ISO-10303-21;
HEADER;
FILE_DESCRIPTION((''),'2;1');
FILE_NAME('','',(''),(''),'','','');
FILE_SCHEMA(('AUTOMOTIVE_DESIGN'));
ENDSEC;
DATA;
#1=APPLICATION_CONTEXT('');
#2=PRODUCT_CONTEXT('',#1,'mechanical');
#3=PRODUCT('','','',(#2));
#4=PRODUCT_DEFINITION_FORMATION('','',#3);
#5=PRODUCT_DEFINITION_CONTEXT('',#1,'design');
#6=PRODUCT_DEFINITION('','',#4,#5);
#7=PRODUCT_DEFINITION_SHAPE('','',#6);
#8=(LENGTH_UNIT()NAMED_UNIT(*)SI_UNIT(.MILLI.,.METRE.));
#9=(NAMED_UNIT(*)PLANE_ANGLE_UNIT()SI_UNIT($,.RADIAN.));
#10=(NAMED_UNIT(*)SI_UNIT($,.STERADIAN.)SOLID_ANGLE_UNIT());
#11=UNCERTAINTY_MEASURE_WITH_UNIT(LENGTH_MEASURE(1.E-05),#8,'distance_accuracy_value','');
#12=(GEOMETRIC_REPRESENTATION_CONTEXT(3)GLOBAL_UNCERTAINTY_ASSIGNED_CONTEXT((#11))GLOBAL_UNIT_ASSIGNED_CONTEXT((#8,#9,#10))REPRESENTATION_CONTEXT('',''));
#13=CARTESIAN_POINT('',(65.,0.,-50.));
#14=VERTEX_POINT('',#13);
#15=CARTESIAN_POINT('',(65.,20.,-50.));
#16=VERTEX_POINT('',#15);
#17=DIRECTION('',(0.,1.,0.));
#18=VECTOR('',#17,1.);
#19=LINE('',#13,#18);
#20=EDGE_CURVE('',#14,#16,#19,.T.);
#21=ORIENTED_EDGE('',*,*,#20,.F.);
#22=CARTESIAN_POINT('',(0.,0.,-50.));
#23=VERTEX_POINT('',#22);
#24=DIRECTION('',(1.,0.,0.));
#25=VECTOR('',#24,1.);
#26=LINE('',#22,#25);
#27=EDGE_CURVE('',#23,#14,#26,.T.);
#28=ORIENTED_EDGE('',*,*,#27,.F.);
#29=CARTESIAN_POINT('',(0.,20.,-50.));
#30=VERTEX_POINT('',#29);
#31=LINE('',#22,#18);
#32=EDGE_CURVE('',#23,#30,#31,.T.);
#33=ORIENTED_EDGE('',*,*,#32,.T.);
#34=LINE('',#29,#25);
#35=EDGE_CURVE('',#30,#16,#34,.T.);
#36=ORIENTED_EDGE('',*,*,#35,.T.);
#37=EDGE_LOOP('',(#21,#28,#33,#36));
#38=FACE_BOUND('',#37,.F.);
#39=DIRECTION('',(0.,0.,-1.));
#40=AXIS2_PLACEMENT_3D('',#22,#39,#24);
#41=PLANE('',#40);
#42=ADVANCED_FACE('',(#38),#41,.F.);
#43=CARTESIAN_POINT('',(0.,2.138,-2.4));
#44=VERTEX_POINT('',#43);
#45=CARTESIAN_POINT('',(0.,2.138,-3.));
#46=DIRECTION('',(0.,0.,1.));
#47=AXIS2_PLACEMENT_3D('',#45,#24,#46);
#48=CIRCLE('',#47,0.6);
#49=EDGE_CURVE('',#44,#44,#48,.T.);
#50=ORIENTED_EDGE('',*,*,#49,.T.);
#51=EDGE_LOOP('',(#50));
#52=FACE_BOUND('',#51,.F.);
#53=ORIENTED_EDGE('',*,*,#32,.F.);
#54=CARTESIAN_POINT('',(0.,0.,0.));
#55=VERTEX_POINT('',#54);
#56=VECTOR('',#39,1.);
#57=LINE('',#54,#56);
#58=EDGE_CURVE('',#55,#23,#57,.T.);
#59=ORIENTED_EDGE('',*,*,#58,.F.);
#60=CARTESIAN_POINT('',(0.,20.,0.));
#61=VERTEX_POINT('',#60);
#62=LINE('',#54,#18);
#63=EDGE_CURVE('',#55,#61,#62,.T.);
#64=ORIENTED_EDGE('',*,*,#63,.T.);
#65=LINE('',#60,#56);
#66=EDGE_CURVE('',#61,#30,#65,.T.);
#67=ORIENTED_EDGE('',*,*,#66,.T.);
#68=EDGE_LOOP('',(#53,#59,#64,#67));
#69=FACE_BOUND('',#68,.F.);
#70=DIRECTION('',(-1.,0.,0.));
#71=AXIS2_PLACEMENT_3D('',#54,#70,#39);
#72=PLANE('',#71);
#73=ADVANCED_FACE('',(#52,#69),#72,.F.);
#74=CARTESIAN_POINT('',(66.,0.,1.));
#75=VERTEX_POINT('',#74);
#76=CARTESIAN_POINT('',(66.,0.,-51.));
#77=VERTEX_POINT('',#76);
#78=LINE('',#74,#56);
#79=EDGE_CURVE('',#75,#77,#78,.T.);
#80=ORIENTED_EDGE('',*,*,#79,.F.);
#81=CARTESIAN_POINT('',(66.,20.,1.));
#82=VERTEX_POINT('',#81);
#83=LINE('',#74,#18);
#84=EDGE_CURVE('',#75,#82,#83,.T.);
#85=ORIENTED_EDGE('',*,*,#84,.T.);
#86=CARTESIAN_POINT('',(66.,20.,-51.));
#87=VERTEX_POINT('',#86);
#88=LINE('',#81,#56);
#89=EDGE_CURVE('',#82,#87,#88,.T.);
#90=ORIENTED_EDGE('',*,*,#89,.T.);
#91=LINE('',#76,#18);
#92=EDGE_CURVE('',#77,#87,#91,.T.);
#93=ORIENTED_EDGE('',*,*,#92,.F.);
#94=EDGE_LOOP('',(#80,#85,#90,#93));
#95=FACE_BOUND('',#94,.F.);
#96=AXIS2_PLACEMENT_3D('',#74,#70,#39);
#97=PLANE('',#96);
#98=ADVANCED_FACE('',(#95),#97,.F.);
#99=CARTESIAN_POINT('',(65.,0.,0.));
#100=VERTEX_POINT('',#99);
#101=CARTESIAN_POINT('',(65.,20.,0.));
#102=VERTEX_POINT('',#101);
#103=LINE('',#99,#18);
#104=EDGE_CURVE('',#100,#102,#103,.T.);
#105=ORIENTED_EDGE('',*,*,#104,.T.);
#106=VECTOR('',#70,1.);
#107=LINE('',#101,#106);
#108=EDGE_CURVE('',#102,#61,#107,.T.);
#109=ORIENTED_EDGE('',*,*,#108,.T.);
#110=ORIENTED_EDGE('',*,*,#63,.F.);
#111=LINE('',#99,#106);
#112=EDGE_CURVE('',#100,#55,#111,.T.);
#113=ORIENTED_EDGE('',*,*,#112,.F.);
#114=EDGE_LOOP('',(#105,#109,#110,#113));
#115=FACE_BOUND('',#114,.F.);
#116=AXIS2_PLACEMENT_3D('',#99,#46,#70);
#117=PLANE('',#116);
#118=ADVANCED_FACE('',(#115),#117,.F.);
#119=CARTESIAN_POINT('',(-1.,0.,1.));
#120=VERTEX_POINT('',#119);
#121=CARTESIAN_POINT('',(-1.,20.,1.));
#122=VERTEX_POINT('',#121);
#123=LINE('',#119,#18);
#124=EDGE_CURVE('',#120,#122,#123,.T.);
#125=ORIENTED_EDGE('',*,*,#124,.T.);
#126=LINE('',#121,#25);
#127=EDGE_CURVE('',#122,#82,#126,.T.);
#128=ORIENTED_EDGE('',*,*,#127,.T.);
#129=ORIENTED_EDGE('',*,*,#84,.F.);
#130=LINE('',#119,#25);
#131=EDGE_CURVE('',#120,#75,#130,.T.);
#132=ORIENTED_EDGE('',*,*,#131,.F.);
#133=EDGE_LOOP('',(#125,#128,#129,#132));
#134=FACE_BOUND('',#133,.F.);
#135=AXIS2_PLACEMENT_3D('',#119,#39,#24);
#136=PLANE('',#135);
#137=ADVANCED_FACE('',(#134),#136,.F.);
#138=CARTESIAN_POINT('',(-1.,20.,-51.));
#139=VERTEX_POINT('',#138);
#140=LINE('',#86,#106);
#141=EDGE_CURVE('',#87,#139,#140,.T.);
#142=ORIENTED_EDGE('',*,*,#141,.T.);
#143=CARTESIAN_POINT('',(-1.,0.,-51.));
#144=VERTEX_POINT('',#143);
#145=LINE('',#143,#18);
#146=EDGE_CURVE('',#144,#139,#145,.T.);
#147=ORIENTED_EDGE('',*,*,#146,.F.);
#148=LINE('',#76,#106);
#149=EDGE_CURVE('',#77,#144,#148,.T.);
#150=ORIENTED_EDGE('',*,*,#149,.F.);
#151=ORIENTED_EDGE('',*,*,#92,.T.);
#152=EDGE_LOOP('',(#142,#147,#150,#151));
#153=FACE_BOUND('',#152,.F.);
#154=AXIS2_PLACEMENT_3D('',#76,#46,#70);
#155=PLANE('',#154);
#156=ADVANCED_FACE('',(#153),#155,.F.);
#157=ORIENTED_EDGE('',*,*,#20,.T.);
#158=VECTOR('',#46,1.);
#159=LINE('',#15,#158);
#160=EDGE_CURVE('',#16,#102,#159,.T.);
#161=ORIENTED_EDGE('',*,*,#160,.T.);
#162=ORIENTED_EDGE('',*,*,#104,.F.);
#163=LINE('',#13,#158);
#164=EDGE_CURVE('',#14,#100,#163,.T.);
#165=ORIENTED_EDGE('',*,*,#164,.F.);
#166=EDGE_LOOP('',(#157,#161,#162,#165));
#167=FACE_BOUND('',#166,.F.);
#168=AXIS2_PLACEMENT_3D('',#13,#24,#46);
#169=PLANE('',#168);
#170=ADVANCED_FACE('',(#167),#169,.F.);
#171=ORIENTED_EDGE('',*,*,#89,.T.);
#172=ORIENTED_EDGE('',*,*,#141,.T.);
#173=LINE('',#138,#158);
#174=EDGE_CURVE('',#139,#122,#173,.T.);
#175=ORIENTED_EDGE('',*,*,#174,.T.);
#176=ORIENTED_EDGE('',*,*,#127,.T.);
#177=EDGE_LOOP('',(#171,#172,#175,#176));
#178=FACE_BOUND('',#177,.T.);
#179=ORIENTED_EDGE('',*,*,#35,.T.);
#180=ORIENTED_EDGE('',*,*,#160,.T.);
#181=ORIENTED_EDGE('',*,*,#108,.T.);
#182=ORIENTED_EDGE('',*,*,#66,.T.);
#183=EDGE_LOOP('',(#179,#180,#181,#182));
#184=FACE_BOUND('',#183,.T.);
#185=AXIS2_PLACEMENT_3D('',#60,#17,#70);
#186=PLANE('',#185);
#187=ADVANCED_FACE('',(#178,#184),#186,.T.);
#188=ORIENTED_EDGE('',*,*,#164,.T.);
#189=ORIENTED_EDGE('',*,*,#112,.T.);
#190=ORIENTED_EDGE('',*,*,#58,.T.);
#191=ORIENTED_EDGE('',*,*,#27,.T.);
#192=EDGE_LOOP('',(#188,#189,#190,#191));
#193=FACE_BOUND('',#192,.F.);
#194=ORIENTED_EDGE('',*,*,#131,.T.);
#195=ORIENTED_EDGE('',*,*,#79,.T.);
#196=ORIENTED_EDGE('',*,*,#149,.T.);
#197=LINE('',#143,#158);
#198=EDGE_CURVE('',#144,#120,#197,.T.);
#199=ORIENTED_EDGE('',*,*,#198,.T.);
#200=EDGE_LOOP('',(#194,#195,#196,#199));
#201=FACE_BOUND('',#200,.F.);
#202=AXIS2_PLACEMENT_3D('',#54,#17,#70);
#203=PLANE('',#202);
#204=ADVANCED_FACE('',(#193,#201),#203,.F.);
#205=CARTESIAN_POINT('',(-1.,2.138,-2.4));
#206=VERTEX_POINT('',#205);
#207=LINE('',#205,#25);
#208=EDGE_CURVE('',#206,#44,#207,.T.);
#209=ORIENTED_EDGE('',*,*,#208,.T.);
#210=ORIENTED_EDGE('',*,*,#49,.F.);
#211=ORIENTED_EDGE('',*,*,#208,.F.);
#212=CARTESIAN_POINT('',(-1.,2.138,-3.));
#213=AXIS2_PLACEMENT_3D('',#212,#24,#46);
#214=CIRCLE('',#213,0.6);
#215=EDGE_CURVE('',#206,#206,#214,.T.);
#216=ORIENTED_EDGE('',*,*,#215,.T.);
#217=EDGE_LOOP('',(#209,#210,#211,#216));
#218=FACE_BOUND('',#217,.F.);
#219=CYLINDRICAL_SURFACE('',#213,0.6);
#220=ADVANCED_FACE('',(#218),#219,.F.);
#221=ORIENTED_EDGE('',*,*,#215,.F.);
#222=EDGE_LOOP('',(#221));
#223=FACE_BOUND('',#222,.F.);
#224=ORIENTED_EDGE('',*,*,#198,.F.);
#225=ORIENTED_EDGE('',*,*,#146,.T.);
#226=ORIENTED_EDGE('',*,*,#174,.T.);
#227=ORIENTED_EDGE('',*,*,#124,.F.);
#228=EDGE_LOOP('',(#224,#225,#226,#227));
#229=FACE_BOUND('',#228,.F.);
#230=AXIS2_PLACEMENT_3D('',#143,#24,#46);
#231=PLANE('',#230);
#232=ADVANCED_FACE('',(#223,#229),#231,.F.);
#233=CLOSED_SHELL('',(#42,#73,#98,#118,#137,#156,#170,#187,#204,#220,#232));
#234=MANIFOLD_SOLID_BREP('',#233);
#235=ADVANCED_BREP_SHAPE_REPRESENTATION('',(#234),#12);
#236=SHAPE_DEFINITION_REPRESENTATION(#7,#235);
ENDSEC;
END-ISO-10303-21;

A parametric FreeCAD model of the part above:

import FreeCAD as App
import Part
import Sketcher
from FreeCAD import Vector

doc = App.newDocument("Part")
body = doc.addObject("PartDesign::Body", "Body")

# Sketch on XZ plane
sketch1 = doc.addObject("Sketcher::SketchObject", "Sketch")
body.addObject(sketch1)
sketch1.AttachmentSupport = (doc.XZ_Plane, [""])
sketch1.MapMode = "FlatFace"
sketch1.addGeometry([
    Part.LineSegment(Vector(66, 1, 0), Vector(66, -51, 0)),  # 0
    Part.LineSegment(Vector(66, -51, 0), Vector(-1, -51, 0)),  # 1
    Part.LineSegment(Vector(-1, -51, 0), Vector(-1, 1, 0)),  # 2
    Part.LineSegment(Vector(-1, 1, 0), Vector(66, 1, 0)),  # 3
    Part.LineSegment(Vector(65, 0, 0), Vector(0, 0, 0)),  # 4
    Part.LineSegment(Vector(0, 0, 0), Vector(0, -50, 0)),  # 5
    Part.LineSegment(Vector(0, -50, 0), Vector(65, -50, 0)),  # 6
    Part.LineSegment(Vector(65, -50, 0), Vector(65, 0, 0)),  # 7
], False)
sketch1.addConstraint([
    Sketcher.Constraint("Coincident", 0, 2, 1, 1),
    Sketcher.Constraint("Coincident", 1, 2, 2, 1),
    Sketcher.Constraint("Coincident", 2, 2, 3, 1),
    Sketcher.Constraint("Coincident", 3, 2, 0, 1),
    Sketcher.Constraint("Coincident", 4, 2, 5, 1),
    Sketcher.Constraint("Coincident", 5, 2, 6, 1),
    Sketcher.Constraint("Coincident", 6, 2, 7, 1),
    Sketcher.Constraint("Coincident", 7, 2, 4, 1),
    Sketcher.Constraint("Vertical", 0),
    Sketcher.Constraint("Horizontal", 1),
    Sketcher.Constraint("Vertical", 2),
    Sketcher.Constraint("Horizontal", 3),
    Sketcher.Constraint("Horizontal", 4),
    Sketcher.Constraint("Vertical", 5),
    Sketcher.Constraint("Horizontal", 6),
    Sketcher.Constraint("Vertical", 7),
    Sketcher.Constraint("Coincident", 4, 2, -1, 1),
    Sketcher.Constraint("DistanceX", 4, 2, 4, 1, 65.0),
    Sketcher.Constraint("DistanceY", 5, 2, 5, 1, 50.0),
    Sketcher.Constraint("DistanceX", 1, 2, -1, 1, 1.0),
    Sketcher.Constraint("DistanceY", -1, 1, 2, 2, 1.0),
    Sketcher.Constraint("DistanceY", 1, 2, 5, 2, 1.0),
    Sketcher.Constraint("DistanceX", 6, 2, 0, 2, 1.0),
])
pad1 = doc.addObject("PartDesign::Pad", "Pad")
body.addObject(pad1)
pad1.Profile = sketch1
pad1.Length = 20
pad1.Reversed = True

# Sketch on YZ plane
sketch2 = doc.addObject("Sketcher::SketchObject", "Sketch001")
body.addObject(sketch2)
sketch2.AttachmentSupport = (doc.YZ_Plane, [""])
sketch2.MapMode = "FlatFace"
sketch2.AttachmentOffset = App.Placement(Vector(0, 0, -1), App.Rotation())
sketch2.addGeometry(Part.Circle(Vector(2.138, -3, 0), Vector(0, 0, 1), 0.6), False)
sketch2.addConstraint([
    Sketcher.Constraint("Diameter", 0, 1.2),
    Sketcher.Constraint("DistanceY", 0, 3, -1, 1, 3.0),
    Sketcher.Constraint("DistanceX", -1, 1, 0, 3, 2.138),
])
doc.recompute()
hole = doc.addObject("PartDesign::Hole", "Hole")
body.addObject(hole)
hole.Profile = sketch2
hole.ThreadType = "None"
hole.Diameter = 1.2
hole.DepthType = "Dimension"
hole.Depth = 8
hole.DrillPoint = "Angled"
hole.DrillPointAngle = 118
hole.Reversed = True

doc.recompute()
